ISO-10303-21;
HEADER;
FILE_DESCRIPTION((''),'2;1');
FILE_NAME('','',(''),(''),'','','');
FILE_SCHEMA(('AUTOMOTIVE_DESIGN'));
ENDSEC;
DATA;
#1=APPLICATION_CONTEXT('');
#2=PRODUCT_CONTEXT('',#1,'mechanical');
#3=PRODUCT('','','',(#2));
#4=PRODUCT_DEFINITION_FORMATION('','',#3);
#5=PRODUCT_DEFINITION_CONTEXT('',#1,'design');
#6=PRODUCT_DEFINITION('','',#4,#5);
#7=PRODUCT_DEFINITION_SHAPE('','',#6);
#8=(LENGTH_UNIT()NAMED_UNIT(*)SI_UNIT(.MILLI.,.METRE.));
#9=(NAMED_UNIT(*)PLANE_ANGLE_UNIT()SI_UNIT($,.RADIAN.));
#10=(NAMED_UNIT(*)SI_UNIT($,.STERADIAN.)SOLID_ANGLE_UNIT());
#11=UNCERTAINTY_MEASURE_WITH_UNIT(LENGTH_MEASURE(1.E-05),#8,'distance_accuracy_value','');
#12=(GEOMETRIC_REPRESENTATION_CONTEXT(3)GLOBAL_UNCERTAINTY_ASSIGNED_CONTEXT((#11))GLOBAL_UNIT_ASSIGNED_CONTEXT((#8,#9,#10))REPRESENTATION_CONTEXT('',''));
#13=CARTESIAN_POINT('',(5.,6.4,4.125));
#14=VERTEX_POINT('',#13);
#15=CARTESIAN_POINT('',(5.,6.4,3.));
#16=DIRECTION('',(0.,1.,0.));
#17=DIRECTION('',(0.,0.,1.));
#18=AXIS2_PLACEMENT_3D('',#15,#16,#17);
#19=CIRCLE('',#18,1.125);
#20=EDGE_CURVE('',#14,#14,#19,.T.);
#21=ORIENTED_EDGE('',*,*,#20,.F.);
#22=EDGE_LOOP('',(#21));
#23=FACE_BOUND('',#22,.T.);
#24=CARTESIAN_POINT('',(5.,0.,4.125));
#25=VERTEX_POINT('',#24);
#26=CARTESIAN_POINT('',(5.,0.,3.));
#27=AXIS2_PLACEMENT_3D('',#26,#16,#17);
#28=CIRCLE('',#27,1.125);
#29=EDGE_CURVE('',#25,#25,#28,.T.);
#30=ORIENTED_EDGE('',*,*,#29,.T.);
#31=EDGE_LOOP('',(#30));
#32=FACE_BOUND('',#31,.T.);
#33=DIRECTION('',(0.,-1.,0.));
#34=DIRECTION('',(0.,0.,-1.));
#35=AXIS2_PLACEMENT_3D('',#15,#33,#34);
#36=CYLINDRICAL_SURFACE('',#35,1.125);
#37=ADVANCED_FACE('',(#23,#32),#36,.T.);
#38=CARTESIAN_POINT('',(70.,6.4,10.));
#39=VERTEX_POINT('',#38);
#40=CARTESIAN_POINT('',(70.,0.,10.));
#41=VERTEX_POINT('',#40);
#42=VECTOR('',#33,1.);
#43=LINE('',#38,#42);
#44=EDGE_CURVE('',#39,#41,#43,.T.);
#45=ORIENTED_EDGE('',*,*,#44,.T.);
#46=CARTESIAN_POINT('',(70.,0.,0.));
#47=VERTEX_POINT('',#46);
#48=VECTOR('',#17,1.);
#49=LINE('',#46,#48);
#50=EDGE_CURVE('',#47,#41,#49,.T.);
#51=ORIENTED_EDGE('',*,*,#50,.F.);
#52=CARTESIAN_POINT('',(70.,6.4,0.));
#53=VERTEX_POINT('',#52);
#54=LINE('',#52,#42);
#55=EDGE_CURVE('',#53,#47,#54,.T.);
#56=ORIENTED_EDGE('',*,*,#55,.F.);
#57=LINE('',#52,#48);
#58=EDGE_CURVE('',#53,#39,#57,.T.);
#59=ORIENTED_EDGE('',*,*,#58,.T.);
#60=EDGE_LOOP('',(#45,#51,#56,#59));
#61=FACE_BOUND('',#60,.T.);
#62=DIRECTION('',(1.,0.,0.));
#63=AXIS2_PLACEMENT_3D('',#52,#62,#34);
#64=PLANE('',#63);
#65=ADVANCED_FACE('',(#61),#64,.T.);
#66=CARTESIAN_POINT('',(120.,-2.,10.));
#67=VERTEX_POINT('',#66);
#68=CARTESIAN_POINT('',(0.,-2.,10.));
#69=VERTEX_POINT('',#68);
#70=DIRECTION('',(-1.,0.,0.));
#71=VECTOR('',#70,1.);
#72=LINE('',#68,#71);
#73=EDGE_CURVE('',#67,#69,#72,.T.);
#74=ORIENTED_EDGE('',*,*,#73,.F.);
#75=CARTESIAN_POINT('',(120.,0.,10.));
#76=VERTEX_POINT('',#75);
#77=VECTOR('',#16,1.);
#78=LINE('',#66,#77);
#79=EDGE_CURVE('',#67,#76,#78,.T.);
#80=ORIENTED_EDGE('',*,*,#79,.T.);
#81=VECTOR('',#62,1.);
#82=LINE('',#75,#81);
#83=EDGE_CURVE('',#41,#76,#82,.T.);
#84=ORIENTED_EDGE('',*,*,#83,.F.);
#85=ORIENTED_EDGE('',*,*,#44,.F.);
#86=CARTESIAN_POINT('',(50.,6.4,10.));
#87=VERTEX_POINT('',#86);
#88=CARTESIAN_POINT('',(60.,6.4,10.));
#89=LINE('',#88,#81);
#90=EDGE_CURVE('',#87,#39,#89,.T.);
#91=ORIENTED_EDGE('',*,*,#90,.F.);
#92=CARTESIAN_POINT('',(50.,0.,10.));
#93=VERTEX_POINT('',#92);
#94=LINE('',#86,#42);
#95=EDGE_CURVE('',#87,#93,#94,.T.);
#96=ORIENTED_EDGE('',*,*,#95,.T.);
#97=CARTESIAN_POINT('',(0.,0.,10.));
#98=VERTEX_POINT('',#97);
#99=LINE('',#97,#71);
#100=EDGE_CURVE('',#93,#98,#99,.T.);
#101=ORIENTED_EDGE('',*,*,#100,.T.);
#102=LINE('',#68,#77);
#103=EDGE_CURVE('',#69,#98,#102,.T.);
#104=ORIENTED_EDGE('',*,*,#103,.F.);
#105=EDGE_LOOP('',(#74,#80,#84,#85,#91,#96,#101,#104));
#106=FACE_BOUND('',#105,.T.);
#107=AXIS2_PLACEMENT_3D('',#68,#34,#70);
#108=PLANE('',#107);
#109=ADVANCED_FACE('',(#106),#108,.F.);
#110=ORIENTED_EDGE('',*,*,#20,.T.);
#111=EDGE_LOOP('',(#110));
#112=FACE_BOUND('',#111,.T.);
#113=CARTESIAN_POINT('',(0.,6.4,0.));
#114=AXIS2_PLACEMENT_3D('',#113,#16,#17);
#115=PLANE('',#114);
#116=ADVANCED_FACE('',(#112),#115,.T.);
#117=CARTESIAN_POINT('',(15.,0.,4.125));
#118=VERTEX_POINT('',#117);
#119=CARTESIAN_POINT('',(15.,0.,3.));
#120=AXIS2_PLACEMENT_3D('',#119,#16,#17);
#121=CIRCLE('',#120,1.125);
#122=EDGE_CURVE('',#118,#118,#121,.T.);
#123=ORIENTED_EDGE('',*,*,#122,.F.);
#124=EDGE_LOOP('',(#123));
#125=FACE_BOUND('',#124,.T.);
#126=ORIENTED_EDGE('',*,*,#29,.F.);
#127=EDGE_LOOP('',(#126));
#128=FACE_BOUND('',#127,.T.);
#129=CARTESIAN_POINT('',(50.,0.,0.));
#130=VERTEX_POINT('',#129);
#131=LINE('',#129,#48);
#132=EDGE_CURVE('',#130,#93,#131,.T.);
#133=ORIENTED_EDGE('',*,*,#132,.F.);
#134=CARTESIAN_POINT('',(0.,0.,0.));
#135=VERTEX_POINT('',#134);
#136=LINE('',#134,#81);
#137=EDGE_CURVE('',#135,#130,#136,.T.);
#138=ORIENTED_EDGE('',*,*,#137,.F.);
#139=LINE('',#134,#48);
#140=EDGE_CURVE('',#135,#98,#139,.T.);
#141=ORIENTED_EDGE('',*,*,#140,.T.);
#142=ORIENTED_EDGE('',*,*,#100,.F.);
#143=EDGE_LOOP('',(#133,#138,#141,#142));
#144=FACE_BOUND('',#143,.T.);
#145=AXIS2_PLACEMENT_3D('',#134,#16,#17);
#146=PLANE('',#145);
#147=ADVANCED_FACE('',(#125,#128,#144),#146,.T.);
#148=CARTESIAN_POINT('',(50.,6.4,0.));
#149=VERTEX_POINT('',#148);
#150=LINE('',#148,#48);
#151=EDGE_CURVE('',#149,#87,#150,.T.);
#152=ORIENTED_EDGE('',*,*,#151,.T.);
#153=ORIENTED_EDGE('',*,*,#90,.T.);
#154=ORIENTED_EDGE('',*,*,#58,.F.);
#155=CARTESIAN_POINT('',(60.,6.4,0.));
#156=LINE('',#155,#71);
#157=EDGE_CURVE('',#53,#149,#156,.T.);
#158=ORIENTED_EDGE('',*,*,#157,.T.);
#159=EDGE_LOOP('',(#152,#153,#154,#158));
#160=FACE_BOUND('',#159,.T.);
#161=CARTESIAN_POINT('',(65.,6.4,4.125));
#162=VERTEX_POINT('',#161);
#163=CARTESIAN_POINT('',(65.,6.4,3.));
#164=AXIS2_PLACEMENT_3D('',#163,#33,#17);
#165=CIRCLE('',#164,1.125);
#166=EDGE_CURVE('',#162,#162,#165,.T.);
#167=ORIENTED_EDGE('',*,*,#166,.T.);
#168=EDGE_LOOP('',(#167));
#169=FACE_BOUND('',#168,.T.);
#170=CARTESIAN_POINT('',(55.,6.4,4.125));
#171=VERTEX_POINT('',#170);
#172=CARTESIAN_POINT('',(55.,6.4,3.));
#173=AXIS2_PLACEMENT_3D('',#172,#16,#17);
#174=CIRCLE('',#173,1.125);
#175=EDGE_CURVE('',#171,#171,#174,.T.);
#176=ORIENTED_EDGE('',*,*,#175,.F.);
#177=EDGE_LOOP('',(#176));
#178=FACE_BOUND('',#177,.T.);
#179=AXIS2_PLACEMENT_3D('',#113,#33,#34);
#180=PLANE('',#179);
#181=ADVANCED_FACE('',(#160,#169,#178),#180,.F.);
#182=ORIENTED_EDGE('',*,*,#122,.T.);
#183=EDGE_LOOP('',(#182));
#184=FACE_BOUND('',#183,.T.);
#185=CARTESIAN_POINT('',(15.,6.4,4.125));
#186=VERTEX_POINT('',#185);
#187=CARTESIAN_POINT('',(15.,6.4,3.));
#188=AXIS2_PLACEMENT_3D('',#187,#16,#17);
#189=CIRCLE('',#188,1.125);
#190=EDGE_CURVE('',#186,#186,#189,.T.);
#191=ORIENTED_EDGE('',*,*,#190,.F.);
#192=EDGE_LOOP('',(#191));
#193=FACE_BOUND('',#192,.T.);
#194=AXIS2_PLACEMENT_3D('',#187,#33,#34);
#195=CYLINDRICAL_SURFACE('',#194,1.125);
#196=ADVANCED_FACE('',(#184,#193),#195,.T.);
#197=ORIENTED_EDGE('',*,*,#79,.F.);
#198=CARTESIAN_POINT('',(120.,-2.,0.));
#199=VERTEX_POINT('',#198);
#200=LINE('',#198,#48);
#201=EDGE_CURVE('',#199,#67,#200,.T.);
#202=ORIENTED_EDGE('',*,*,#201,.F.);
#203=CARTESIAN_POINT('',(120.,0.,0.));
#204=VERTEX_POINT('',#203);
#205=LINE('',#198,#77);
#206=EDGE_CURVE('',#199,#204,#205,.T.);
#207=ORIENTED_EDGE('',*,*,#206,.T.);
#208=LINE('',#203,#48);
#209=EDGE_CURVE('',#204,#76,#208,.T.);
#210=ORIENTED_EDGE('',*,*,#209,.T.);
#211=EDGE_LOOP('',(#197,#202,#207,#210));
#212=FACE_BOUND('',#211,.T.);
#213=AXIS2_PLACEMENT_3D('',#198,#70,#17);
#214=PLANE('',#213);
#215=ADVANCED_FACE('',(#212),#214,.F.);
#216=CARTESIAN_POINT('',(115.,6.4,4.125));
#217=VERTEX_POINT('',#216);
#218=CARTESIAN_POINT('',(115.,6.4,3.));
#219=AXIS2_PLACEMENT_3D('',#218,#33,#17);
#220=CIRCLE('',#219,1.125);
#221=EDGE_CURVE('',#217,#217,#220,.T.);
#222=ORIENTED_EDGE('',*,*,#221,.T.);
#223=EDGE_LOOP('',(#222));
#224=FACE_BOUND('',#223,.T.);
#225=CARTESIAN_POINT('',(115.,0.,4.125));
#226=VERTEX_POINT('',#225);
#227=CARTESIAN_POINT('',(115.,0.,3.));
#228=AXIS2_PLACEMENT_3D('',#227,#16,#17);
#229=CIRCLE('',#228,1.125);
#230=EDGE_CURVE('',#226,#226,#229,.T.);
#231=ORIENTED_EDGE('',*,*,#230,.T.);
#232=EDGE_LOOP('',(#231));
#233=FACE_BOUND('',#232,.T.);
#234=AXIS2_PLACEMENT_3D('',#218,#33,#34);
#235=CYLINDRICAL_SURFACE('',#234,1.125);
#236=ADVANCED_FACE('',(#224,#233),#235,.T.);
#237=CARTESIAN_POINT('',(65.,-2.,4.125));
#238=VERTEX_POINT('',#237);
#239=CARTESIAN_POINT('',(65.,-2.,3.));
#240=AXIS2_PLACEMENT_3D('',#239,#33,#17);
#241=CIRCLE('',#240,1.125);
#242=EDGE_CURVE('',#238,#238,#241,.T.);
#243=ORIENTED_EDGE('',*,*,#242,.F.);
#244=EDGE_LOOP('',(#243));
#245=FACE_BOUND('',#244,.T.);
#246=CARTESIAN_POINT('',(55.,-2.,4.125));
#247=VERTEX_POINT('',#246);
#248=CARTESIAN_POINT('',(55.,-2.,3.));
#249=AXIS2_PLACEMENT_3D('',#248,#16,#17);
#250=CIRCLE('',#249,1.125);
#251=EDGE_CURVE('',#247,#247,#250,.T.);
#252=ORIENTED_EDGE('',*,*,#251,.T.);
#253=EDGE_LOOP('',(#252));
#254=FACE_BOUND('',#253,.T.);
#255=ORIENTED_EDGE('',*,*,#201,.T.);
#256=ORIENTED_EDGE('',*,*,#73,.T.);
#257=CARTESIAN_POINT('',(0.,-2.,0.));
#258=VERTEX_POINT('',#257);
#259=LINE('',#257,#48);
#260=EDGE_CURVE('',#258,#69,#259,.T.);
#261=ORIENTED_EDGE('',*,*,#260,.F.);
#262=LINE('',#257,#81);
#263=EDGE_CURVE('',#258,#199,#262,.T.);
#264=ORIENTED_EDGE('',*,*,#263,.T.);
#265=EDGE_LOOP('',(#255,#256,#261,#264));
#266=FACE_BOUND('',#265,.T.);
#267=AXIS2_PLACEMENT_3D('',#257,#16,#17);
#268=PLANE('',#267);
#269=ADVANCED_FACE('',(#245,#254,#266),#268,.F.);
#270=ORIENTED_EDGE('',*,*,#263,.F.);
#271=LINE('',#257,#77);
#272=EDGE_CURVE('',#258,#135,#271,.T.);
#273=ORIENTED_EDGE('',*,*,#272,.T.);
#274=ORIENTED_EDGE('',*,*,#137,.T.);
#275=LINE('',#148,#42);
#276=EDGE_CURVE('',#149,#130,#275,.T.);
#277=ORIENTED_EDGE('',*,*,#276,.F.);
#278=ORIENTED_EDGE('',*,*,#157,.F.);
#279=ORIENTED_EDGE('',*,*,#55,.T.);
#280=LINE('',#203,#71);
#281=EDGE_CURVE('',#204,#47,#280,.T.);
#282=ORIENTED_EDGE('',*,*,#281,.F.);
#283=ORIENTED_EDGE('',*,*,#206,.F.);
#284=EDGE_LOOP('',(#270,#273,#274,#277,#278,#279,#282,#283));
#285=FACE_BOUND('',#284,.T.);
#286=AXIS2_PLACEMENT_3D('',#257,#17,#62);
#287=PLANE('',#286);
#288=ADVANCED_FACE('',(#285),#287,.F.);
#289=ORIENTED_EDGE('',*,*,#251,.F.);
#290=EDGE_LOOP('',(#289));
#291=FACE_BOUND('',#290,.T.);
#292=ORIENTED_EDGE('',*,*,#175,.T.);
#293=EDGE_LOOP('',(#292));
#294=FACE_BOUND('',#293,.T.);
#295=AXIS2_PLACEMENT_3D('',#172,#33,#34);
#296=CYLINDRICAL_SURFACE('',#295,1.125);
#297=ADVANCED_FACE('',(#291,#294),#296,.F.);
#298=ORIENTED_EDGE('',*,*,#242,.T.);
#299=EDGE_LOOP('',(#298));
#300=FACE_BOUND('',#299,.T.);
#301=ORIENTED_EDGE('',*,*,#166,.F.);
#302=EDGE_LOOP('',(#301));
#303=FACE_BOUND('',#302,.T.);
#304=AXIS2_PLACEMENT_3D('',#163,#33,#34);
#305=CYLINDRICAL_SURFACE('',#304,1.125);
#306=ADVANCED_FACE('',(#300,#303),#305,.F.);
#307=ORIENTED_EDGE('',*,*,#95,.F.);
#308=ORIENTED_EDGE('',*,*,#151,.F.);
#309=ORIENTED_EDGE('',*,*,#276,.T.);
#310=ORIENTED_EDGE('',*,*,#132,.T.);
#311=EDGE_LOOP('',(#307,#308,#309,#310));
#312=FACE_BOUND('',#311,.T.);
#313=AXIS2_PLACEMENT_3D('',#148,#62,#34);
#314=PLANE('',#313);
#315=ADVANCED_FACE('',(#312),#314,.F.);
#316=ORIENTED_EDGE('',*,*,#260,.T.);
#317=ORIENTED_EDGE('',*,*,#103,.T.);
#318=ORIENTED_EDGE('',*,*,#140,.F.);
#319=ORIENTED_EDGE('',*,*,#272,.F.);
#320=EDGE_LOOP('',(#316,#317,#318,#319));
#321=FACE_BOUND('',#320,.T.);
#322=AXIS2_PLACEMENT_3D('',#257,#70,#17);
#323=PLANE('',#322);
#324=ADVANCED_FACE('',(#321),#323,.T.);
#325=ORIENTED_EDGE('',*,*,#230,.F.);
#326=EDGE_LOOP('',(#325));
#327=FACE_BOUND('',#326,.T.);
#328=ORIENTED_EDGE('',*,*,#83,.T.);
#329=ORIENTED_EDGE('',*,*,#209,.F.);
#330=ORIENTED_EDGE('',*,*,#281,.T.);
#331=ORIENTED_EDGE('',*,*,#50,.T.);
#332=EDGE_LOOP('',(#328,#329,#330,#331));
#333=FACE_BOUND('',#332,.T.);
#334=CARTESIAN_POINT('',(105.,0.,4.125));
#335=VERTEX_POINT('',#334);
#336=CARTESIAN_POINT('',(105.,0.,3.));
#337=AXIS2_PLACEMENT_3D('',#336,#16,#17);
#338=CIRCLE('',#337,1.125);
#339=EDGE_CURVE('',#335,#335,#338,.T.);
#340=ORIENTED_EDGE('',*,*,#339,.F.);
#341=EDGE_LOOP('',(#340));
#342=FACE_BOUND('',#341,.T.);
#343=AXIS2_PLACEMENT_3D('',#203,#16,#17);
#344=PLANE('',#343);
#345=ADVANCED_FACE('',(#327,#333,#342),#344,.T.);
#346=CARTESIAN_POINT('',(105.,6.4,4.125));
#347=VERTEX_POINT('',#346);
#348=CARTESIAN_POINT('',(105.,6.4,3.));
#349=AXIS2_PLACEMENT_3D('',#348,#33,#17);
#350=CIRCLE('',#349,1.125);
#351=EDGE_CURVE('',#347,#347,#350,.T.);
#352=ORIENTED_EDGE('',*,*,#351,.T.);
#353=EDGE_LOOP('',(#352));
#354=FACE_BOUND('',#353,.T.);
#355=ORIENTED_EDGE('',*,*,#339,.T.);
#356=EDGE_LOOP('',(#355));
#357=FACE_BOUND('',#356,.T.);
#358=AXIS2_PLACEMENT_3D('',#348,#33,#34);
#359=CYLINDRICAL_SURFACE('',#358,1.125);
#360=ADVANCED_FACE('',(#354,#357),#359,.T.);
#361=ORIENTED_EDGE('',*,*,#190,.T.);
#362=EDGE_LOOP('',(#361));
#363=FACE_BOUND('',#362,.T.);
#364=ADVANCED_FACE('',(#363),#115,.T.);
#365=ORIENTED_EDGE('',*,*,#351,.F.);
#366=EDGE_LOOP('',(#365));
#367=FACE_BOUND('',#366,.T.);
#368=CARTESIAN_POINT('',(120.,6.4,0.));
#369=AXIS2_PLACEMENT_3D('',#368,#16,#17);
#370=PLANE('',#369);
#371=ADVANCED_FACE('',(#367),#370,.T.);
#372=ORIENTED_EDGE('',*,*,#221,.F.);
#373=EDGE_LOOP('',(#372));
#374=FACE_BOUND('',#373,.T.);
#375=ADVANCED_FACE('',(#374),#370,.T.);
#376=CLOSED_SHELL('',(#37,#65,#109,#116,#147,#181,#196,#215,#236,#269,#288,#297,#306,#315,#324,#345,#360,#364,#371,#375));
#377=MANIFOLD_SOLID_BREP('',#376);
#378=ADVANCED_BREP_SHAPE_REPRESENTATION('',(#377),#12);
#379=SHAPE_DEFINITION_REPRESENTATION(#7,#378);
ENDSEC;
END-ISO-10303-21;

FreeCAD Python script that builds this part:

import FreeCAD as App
import Part
import Sketcher

V = App.Vector


def add_polygon(sketch, points):
    """Adds a closed chain of lines whose ends are joined by coincident constraints."""
    first, n = sketch.GeometryCount, len(points)
    for a, b in zip(points, points[1:] + points[:1]):
        sketch.addGeometry(Part.LineSegment(App.Vector(*a, 0), App.Vector(*b, 0)), False)
    for i in range(n):
        sketch.addConstraint(Sketcher.Constraint("Coincident", first + i, 2, first + (i + 1) % n, 1))

doc = App.newDocument("Part")
params = doc.addObject("Spreadsheet::Sheet", "Params")
for row, (alias, value) in enumerate([
    ("sketch1_width", "40 mm"),
    ("sketch1_height", "10 mm"),
    ("pad1_length", "2 mm"),
    ("sketch2_width", "20 mm"),
    ("sketch2_height", "10 mm"),
    ("pad2_length", "2 mm"),
    ("sketch3_diameter", "2.25 mm"),
    ("pad3_length", "6.4 mm"),
    ("sketch4_diameter", "2.25 mm"),
    ("sketch4_width", "10 mm"),
    ("pad4_length", "6.4 mm"),
    ("sketch5_diameter", "2.25 mm"),
], start=1):
    params.set(f"A{row}", alias)
    params.set(f"B{row}", "=" + value)
    params.setAlias(f"B{row}", alias)

body = doc.addObject("PartDesign::Body", "Body")

sketch1 = body.newObject("Sketcher::SketchObject", "Sketch")
sketch1.AttachmentSupport = (doc.getObject("XZ_Plane"), [""])
sketch1.MapMode = "FlatFace"
add_polygon(sketch1, [(20, 0), (20, 10), (60, 10), (60, 0)])
sketch1.addConstraint([
    Sketcher.Constraint("Vertical", 0),
    Sketcher.Constraint("Horizontal", 1),
    Sketcher.Constraint("Vertical", 2),
    Sketcher.Constraint("Horizontal", 3),
    Sketcher.Constraint("PointOnObject", 2, 2, -1),
    Sketcher.Constraint("DistanceX", 1, 1, 1, 2, 40.0),
    Sketcher.Constraint("DistanceY", 0, 1, 0, 2, 10.0),
    Sketcher.Constraint("DistanceX", -1, 1, 0, 2, 20.0),
])
sketch1.setExpression("Constraints[9]", "Params.sketch1_width")
sketch1.setExpression("Constraints[10]", "Params.sketch1_height")
pad1 = body.newObject("PartDesign::Pad", "Pad")
pad1.Profile = sketch1
pad1.setExpression("Length", "Params.pad1_length")

sketch2 = body.newObject("Sketcher::SketchObject", "Sketch001")
sketch2.AttachmentSupport = (doc.getObject("XZ_Plane"), [""])
sketch2.MapMode = "FlatFace"
add_polygon(sketch2, [(0, 0), (0, 10), (20, 10), (20, 0)])
sketch2.addConstraint([
    Sketcher.Constraint("Vertical", 0),
    Sketcher.Constraint("Horizontal", 1),
    Sketcher.Constraint("Vertical", 2),
    Sketcher.Constraint("Horizontal", 3),
    Sketcher.Constraint("Coincident", 3, 2, -1, 1),
    Sketcher.Constraint("DistanceX", 1, 1, 1, 2, 20.0),
    Sketcher.Constraint("DistanceY", 0, 1, 0, 2, 10.0),
])
sketch2.setExpression("Constraints[9]", "Params.sketch2_width")
sketch2.setExpression("Constraints[10]", "Params.sketch2_height")
pad2 = body.newObject("PartDesign::Pad", "Pad001")
pad2.Profile = sketch2
pad2.setExpression("Length", "Params.pad2_length")

sketch3 = body.newObject("Sketcher::SketchObject", "Sketch002")
sketch3.AttachmentSupport = (doc.getObject("XZ_Plane"), [""])
sketch3.MapMode = "FlatFace"
sketch3.addGeometry([
    Part.Circle(V(15, 3, 0), V(0, 0, 1), 1.1),
    Part.Circle(V(5, 3, 0), V(0, 0, 1), 1.1),
], False)
sketch3.addConstraint([
    Sketcher.Constraint("Equal", 0, 1),
    Sketcher.Constraint("Horizontal", 0, 3, 1, 3),
    Sketcher.Constraint("Diameter", 0, 2.25),
    Sketcher.Constraint("DistanceX", -1, 1, 0, 3, 15.0),
    Sketcher.Constraint("DistanceY", -1, 1, 0, 3, 3.0),
    Sketcher.Constraint("DistanceX", -1, 1, 1, 3, 5.0),
])
sketch3.setExpression("Constraints[2]", "Params.sketch3_diameter")
pad3 = body.newObject("PartDesign::Pad", "Pad002")
pad3.Profile = sketch3
pad3.setExpression("Length", "Params.pad3_length")
pad3.Reversed = True

sketch4 = body.newObject("Sketcher::SketchObject", "Sketch003")
sketch4.AttachmentSupport = (doc.getObject("XZ_Plane"), [""])
sketch4.MapMode = "FlatFace"
add_polygon(sketch4, [(50, 0), (50, 10), (60, 10), (60, 0)])
sketch4.addGeometry(Part.Circle(V(55, 3, 0), V(0, 0, 1), 1.1), False)
sketch4.addConstraint([
    Sketcher.Constraint("Vertical", 0),
    Sketcher.Constraint("Horizontal", 1),
    Sketcher.Constraint("Vertical", 2),
    Sketcher.Constraint("Horizontal", 3),
    Sketcher.Constraint("PointOnObject", 2, 2, -1),
    Sketcher.Constraint("Equal", 3, 0),
    Sketcher.Constraint("Diameter", 4, 2.25),
    Sketcher.Constraint("DistanceX", 1, 1, 1, 2, 10.0),
    Sketcher.Constraint("DistanceX", -1, 1, 4, 3, 55.0),
    Sketcher.Constraint("DistanceY", -1, 1, 4, 3, 3.0),
    Sketcher.Constraint("DistanceX", -1, 1, 0, 2, 50.0),
])
sketch4.setExpression("Constraints[10]", "Params.sketch4_diameter")
sketch4.setExpression("Constraints[11]", "Params.sketch4_width")
pad4 = body.newObject("PartDesign::Pad", "Pad003")
pad4.Profile = sketch4
pad4.setExpression("Length", "Params.pad4_length")
pad4.Reversed = True

sketch5 = body.newObject("Sketcher::SketchObject", "Sketch004")
sketch5.AttachmentSupport = (doc.getObject("XZ_Plane"), [""])
sketch5.MapMode = "FlatFace"
sketch5.addGeometry(Part.Circle(V(55, 3, 0), V(0, 0, 1), 1.1), False)
sketch5.addConstraint([
    Sketcher.Constraint("Diameter", 0, 2.25),
    Sketcher.Constraint("DistanceX", -1, 1, 0, 3, 55.0),
    Sketcher.Constraint("DistanceY", -1, 1, 0, 3, 3.0),
])
sketch5.setExpression("Constraints[0]", "Params.sketch5_diameter")
pocket1 = body.newObject("PartDesign::Pocket", "Pocket")
pocket1.Profile = sketch5
pocket1.Type = "ThroughAll"
pocket1.Reversed = True
doc.recompute()

datumplane = body.newObject("PartDesign::Plane", "DatumPlane")
datumplane.AttachmentSupport = (doc.getObject("YZ_Plane"), [""])
datumplane.MapMode = "FlatFace"
datumplane.AttachmentOffset = App.Placement(V(0, 0, 60), App.Rotation())
mirrored = body.newObject("PartDesign::Mirrored", "Mirrored")
mirrored.Originals = [pad1, pad2, pad3, pad4, pocket1]
mirrored.MirrorPlane = (datumplane, [""])
body.Tip = mirrored

doc.recompute()
